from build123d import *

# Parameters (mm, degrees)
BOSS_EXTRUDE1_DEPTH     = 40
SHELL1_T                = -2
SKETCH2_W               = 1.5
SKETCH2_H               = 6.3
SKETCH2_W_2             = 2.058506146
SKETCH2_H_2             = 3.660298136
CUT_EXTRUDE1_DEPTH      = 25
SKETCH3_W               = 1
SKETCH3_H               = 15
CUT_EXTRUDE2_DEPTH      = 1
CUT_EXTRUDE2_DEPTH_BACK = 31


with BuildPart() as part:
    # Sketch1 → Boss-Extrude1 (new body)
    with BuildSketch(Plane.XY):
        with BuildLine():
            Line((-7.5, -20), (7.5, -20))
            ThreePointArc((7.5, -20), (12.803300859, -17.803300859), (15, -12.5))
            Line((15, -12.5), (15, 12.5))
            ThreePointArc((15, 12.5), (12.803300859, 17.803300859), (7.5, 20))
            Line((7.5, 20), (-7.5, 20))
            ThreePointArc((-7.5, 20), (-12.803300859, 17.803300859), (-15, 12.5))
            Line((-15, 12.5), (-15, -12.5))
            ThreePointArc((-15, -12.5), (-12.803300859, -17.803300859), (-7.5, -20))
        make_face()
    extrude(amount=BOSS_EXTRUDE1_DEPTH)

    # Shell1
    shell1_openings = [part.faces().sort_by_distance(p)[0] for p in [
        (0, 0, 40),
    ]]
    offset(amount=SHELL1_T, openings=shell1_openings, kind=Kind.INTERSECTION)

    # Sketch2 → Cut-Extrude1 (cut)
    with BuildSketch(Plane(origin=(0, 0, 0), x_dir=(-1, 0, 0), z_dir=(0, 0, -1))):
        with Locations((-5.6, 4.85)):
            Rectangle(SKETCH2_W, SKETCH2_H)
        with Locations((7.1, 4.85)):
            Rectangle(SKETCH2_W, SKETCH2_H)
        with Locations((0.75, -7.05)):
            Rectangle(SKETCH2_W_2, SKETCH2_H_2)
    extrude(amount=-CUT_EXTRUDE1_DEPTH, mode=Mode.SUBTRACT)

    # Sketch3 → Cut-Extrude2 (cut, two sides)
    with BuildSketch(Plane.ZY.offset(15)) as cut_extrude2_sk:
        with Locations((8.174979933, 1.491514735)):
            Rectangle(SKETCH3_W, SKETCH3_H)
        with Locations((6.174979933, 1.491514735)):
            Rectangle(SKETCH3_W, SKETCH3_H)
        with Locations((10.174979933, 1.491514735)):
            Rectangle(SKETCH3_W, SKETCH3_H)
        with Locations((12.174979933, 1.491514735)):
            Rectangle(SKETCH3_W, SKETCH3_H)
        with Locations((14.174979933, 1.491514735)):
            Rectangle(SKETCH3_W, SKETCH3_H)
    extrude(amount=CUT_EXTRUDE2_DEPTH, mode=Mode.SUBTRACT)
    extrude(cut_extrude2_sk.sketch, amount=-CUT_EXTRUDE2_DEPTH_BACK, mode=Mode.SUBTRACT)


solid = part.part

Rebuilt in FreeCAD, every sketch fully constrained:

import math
import FreeCAD as App
import Part
import Sketcher
from FreeCAD import Vector
Q = App.Units.Quantity


def faces_at(feature, points):
    """Names of the faces that lie closest to the given points."""
    faces = feature.Shape.Faces
    near = lambda p: min(range(len(faces)), key=lambda i: faces[i].distToShape(Part.Vertex(*p))[0])
    return sorted({f"Face{near(p) + 1}" for p in points})

doc = App.newDocument("Part")
body = doc.addObject("PartDesign::Body", "Body")

# Sketch on XY plane
sketch1 = body.newObject("Sketcher::SketchObject", "Sketch")
sketch1.AttachmentSupport = (doc.getObject("XY_Plane"), [""])
sketch1.MapMode = "FlatFace"
sketch1.addGeometry(Part.LineSegment(Vector(-7.5, -20, 0), Vector(7.5, -20, 0)), False)
sketch1.addGeometry(Part.ArcOfCircle(Part.Circle(Vector(7.5, -12.5, 0), Vector(0, 0, 1), 7.5), math.radians(-90), math.radians(0)), False)
sketch1.addGeometry(Part.LineSegment(Vector(15, -12.5, 0), Vector(15, 12.5, 0)), False)
sketch1.addGeometry(Part.ArcOfCircle(Part.Circle(Vector(7.5, 12.5, 0), Vector(0, 0, 1), 7.5), math.radians(0), math.radians(90)), False)
sketch1.addGeometry(Part.LineSegment(Vector(7.5, 20, 0), Vector(-7.5, 20, 0)), False)
sketch1.addGeometry(Part.ArcOfCircle(Part.Circle(Vector(-7.5, 12.5, 0), Vector(0, 0, 1), 7.5), math.radians(90), math.radians(180)), False)
sketch1.addGeometry(Part.LineSegment(Vector(-15, 12.5, 0), Vector(-15, -12.5, 0)), False)
sketch1.addGeometry(Part.ArcOfCircle(Part.Circle(Vector(-7.5, -12.5, 0), Vector(0, 0, 1), 7.5), math.radians(180), math.radians(270)), False)
sketch1.addConstraint(Sketcher.Constraint("Tangent", 0, 2, 1, 1))
sketch1.addConstraint(Sketcher.Constraint("Tangent", 1, 2, 2, 1))
sketch1.addConstraint(Sketcher.Constraint("Tangent", 2, 2, 3, 1))
sketch1.addConstraint(Sketcher.Constraint("Tangent", 3, 2, 4, 1))
sketch1.addConstraint(Sketcher.Constraint("Tangent", 4, 2, 5, 1))
sketch1.addConstraint(Sketcher.Constraint("Tangent", 5, 2, 6, 1))
sketch1.addConstraint(Sketcher.Constraint("Tangent", 6, 2, 7, 1))
sketch1.addConstraint(Sketcher.Constraint("Tangent", 7, 2, 0, 1))
sketch1.addConstraint(Sketcher.Constraint("Horizontal", 0))
sketch1.addConstraint(Sketcher.Constraint("Vertical", 2))
sketch1.addConstraint(Sketcher.Constraint("Horizontal", 4))
sketch1.addConstraint(Sketcher.Constraint("Vertical", 6))
sketch1.addConstraint(Sketcher.Constraint("Equal", 1, 3))
sketch1.addConstraint(Sketcher.Constraint("Equal", 3, 5))
sketch1.addConstraint(Sketcher.Constraint("Equal", 5, 7))
sketch1.addConstraint(Sketcher.Constraint("Symmetric", 1, 3, 5, 3, -1, 1))
sketch1.addConstraint(Sketcher.Constraint("Radius", 1, Q("7.5 mm")))
sketch1.addConstraint(Sketcher.Constraint("DistanceX", 0, 1, 0, 2, Q("15 mm")))
sketch1.addConstraint(Sketcher.Constraint("DistanceY", 2, 1, 2, 2, Q("25 mm")))
pad1 = body.newObject("PartDesign::Pad", "Pad")
pad1.Profile = sketch1
pad1.Length = 40
doc.recompute()

thickness = body.newObject("PartDesign::Thickness", "Thickness")
thickness.Base = (pad1, faces_at(pad1, [(0, 0, 40)]))
thickness.Value = 2
thickness.Reversed = True
thickness.Join = "Intersection"

# Sketch on XY plane
sketch2 = body.newObject("Sketcher::SketchObject", "Sketch001")
sketch2.AttachmentSupport = (doc.getObject("XY_Plane"), [""])
sketch2.MapMode = "FlatFace"
sketch2.addGeometry(Part.LineSegment(Vector(6.35, 8, 0), Vector(6.35, 1.7, 0)), False)
sketch2.addGeometry(Part.LineSegment(Vector(6.35, 1.7, 0), Vector(4.85, 1.7, 0)), False)
sketch2.addGeometry(Part.LineSegment(Vector(4.85, 1.7, 0), Vector(4.85, 8, 0)), False)
sketch2.addGeometry(Part.LineSegment(Vector(4.85, 8, 0), Vector(6.35, 8, 0)), False)
sketch2.addGeometry(Part.LineSegment(Vector(-6.35, 8, 0), Vector(-6.35, 1.7, 0)), False)
sketch2.addGeometry(Part.LineSegment(Vector(-6.35, 1.7, 0), Vector(-7.85, 1.7, 0)), False)
sketch2.addGeometry(Part.LineSegment(Vector(-7.85, 1.7, 0), Vector(-7.85, 8, 0)), False)
sketch2.addGeometry(Part.LineSegment(Vector(-7.85, 8, 0), Vector(-6.35, 8, 0)), False)
sketch2.addGeometry(Part.LineSegment(Vector(0.279253, -5.219851, 0), Vector(0.279253, -8.880149, 0)), False)
sketch2.addGeometry(Part.LineSegment(Vector(0.279253, -8.880149, 0), Vector(-1.779253, -8.880149, 0)), False)
sketch2.addGeometry(Part.LineSegment(Vector(-1.779253, -8.880149, 0), Vector(-1.779253, -5.219851, 0)), False)
sketch2.addGeometry(Part.LineSegment(Vector(-1.779253, -5.219851, 0), Vector(0.279253, -5.219851, 0)), False)
sketch2.addConstraint(Sketcher.Constraint("Coincident", 0, 2, 1, 1))
sketch2.addConstraint(Sketcher.Constraint("Coincident", 1, 2, 2, 1))
sketch2.addConstraint(Sketcher.Constraint("Coincident", 2, 2, 3, 1))
sketch2.addConstraint(Sketcher.Constraint("Coincident", 3, 2, 0, 1))
sketch2.addConstraint(Sketcher.Constraint("Coincident", 4, 2, 5, 1))
sketch2.addConstraint(Sketcher.Constraint("Coincident", 5, 2, 6, 1))
sketch2.addConstraint(Sketcher.Constraint("Coincident", 6, 2, 7, 1))
sketch2.addConstraint(Sketcher.Constraint("Coincident", 7, 2, 4, 1))
sketch2.addConstraint(Sketcher.Constraint("Coincident", 8, 2, 9, 1))
sketch2.addConstraint(Sketcher.Constraint("Coincident", 9, 2, 10, 1))
sketch2.addConstraint(Sketcher.Constraint("Coincident", 10, 2, 11, 1))
sketch2.addConstraint(Sketcher.Constraint("Coincident", 11, 2, 8, 1))
sketch2.addConstraint(Sketcher.Constraint("Vertical", 0))
sketch2.addConstraint(Sketcher.Constraint("Horizontal", 1))
sketch2.addConstraint(Sketcher.Constraint("Vertical", 2))
sketch2.addConstraint(Sketcher.Constraint("Horizontal", 3))
sketch2.addConstraint(Sketcher.Constraint("Vertical", 4))
sketch2.addConstraint(Sketcher.Constraint("Horizontal", 5))
sketch2.addConstraint(Sketcher.Constraint("Vertical", 6))
sketch2.addConstraint(Sketcher.Constraint("Horizontal", 7))
sketch2.addConstraint(Sketcher.Constraint("Vertical", 8))
sketch2.addConstraint(Sketcher.Constraint("Horizontal", 9))
sketch2.addConstraint(Sketcher.Constraint("Vertical", 10))
sketch2.addConstraint(Sketcher.Constraint("Horizontal", 11))
sketch2.addConstraint(Sketcher.Constraint("Symmetric", 0, 2, 4, 2, -2))
sketch2.addConstraint(Sketcher.Constraint("Horizontal", 3, 2, 6, 2))
sketch2.addConstraint(Sketcher.Constraint("Equal", 3, 5))
sketch2.addConstraint(Sketcher.Constraint("DistanceX", 1, 2, 1, 1, Q("1.5 mm")))
sketch2.addConstraint(Sketcher.Constraint("DistanceY", 0, 2, 0, 1, Q("6.3 mm")))
sketch2.addConstraint(Sketcher.Constraint("DistanceY", -1, 1, 2, 2, Q("8 mm")))
sketch2.addConstraint(Sketcher.Constraint("DistanceX", 4, 2, 1, 2, Q("11.2 mm")))
sketch2.addConstraint(Sketcher.Constraint("DistanceY", 8, 2, 8, 1, Q("3.660298 mm")))
sketch2.addConstraint(Sketcher.Constraint("DistanceX", 9, 2, 9, 1, Q("2.058506 mm")))
sketch2.addConstraint(Sketcher.Constraint("DistanceY", 8, 2, -1, 1, Q("8.880149 mm")))
sketch2.addConstraint(Sketcher.Constraint("DistanceX", -1, 1, 8, 2, Q("0.279253 mm")))
pocket1 = body.newObject("PartDesign::Pocket", "Pocket")
pocket1.Profile = sketch2
pocket1.Length = 25
pocket1.Reversed = True

# Sketch on YZ plane
sketch3 = body.newObject("Sketcher::SketchObject", "Sketch002")
sketch3.AttachmentSupport = (doc.getObject("YZ_Plane"), [""])
sketch3.MapMode = "FlatFace"
sketch3.AttachmentOffset = App.Placement(Vector(0, 0, -15), App.Rotation())
sketch3.addGeometry(Part.LineSegment(Vector(8.991515, 7.67498, 0), Vector(-6.008485, 7.67498, 0)), False)
sketch3.addGeometry(Part.LineSegment(Vector(-6.008485, 7.67498, 0), Vector(-6.008485, 8.67498, 0)), False)
sketch3.addGeometry(Part.LineSegment(Vector(-6.008485, 8.67498, 0), Vector(8.991515, 8.67498, 0)), False)
sketch3.addGeometry(Part.LineSegment(Vector(8.991515, 8.67498, 0), Vector(8.991515, 7.67498, 0)), False)
sketch3.addGeometry(Part.LineSegment(Vector(8.991515, 5.67498, 0), Vector(-6.008485, 5.67498, 0)), False)
sketch3.addGeometry(Part.LineSegment(Vector(-6.008485, 5.67498, 0), Vector(-6.008485, 6.67498, 0)), False)
sketch3.addGeometry(Part.LineSegment(Vector(-6.008485, 6.67498, 0), Vector(8.991515, 6.67498, 0)), False)
sketch3.addGeometry(Part.LineSegment(Vector(8.991515, 6.67498, 0), Vector(8.991515, 5.67498, 0)), False)
sketch3.addGeometry(Part.LineSegment(Vector(8.991515, 9.67498, 0), Vector(-6.008485, 9.67498, 0)), False)
sketch3.addGeometry(Part.LineSegment(Vector(-6.008485, 9.67498, 0), Vector(-6.008485, 10.67498, 0)), False)
sketch3.addGeometry(Part.LineSegment(Vector(-6.008485, 10.67498, 0), Vector(8.991515, 10.67498, 0)), False)
sketch3.addGeometry(Part.LineSegment(Vector(8.991515, 10.67498, 0), Vector(8.991515, 9.67498, 0)), False)
sketch3.addGeometry(Part.LineSegment(Vector(8.991515, 11.67498, 0), Vector(-6.008485, 11.67498, 0)), False)
sketch3.addGeometry(Part.LineSegment(Vector(-6.008485, 11.67498, 0), Vector(-6.008485, 12.67498, 0)), False)
sketch3.addGeometry(Part.LineSegment(Vector(-6.008485, 12.67498, 0), Vector(8.991515, 12.67498, 0)), False)
sketch3.addGeometry(Part.LineSegment(Vector(8.991515, 12.67498, 0), Vector(8.991515, 11.67498, 0)), False)
sketch3.addGeometry(Part.LineSegment(Vector(8.991515, 13.67498, 0), Vector(-6.008485, 13.67498, 0)), False)
sketch3.addGeometry(Part.LineSegment(Vector(-6.008485, 13.67498, 0), Vector(-6.008485, 14.67498, 0)), False)
sketch3.addGeometry(Part.LineSegment(Vector(-6.008485, 14.67498, 0), Vector(8.991515, 14.67498, 0)), False)
sketch3.addGeometry(Part.LineSegment(Vector(8.991515, 14.67498, 0), Vector(8.991515, 13.67498, 0)), False)
sketch3.addConstraint(Sketcher.Constraint("Coincident", 0, 2, 1, 1))
sketch3.addConstraint(Sketcher.Constraint("Coincident", 1, 2, 2, 1))
sketch3.addConstraint(Sketcher.Constraint("Coincident", 2, 2, 3, 1))
sketch3.addConstraint(Sketcher.Constraint("Coincident", 3, 2, 0, 1))
sketch3.addConstraint(Sketcher.Constraint("Coincident", 4, 2, 5, 1))
sketch3.addConstraint(Sketcher.Constraint("Coincident", 5, 2, 6, 1))
sketch3.addConstraint(Sketcher.Constraint("Coincident", 6, 2, 7, 1))
sketch3.addConstraint(Sketcher.Constraint("Coincident", 7, 2, 4, 1))
sketch3.addConstraint(Sketcher.Constraint("Coincident", 8, 2, 9, 1))
sketch3.addConstraint(Sketcher.Constraint("Coincident", 9, 2, 10, 1))
sketch3.addConstraint(Sketcher.Constraint("Coincident", 10, 2, 11, 1))
sketch3.addConstraint(Sketcher.Constraint("Coincident", 11, 2, 8, 1))
sketch3.addConstraint(Sketcher.Constraint("Coincident", 12, 2, 13, 1))
sketch3.addConstraint(Sketcher.Constraint("Coincident", 13, 2, 14, 1))
sketch3.addConstraint(Sketcher.Constraint("Coincident", 14, 2, 15, 1))
sketch3.addConstraint(Sketcher.Constraint("Coincident", 15, 2, 12, 1))
sketch3.addConstraint(Sketcher.Constraint("Coincident", 16, 2, 17, 1))
sketch3.addConstraint(Sketcher.Constraint("Coincident", 17, 2, 18, 1))
sketch3.addConstraint(Sketcher.Constraint("Coincident", 18, 2, 19, 1))
sketch3.addConstraint(Sketcher.Constraint("Coincident", 19, 2, 16, 1))
sketch3.addConstraint(Sketcher.Constraint("Horizontal", 0))
sketch3.addConstraint(Sketcher.Constraint("Vertical", 1))
sketch3.addConstraint(Sketcher.Constraint("Horizontal", 2))
sketch3.addConstraint(Sketcher.Constraint("Vertical", 3))
sketch3.addConstraint(Sketcher.Constraint("Horizontal", 4))
sketch3.addConstraint(Sketcher.Constraint("Vertical", 5))
sketch3.addConstraint(Sketcher.Constraint("Horizontal", 6))
sketch3.addConstraint(Sketcher.Constraint("Vertical", 7))
sketch3.addConstraint(Sketcher.Constraint("Horizontal", 8))
sketch3.addConstraint(Sketcher.Constraint("Vertical", 9))
sketch3.addConstraint(Sketcher.Constraint("Horizontal", 10))
sketch3.addConstraint(Sketcher.Constraint("Vertical", 11))
sketch3.addConstraint(Sketcher.Constraint("Horizontal", 12))
sketch3.addConstraint(Sketcher.Constraint("Vertical", 13))
sketch3.addConstraint(Sketcher.Constraint("Horizontal", 14))
sketch3.addConstraint(Sketcher.Constraint("Vertical", 15))
sketch3.addConstraint(Sketcher.Constraint("Horizontal", 16))
sketch3.addConstraint(Sketcher.Constraint("Vertical", 17))
sketch3.addConstraint(Sketcher.Constraint("Horizontal", 18))
sketch3.addConstraint(Sketcher.Constraint("Vertical", 19))
sketch3.addConstraint(Sketcher.Constraint("Vertical", 1, 2, 4, 2))
sketch3.addConstraint(Sketcher.Constraint("Vertical", 3, 2, 6, 2))
sketch3.addConstraint(Sketcher.Constraint("Vertical", 5, 2, 8, 2))
sketch3.addConstraint(Sketcher.Constraint("Vertical", 7, 2, 10, 2))
sketch3.addConstraint(Sketcher.Constraint("Vertical", 9, 2, 12, 2))
sketch3.addConstraint(Sketcher.Constraint("Vertical", 11, 2, 14, 2))
sketch3.addConstraint(Sketcher.Constraint("Vertical", 13, 2, 16, 2))
sketch3.addConstraint(Sketcher.Constraint("Vertical", 15, 2, 18, 2))
sketch3.addConstraint(Sketcher.Constraint("Equal", 3, 5))
sketch3.addConstraint(Sketcher.Constraint("Equal", 7, 9))
sketch3.addConstraint(Sketcher.Constraint("Equal", 11, 13))
sketch3.addConstraint(Sketcher.Constraint("Equal", 15, 17))
sketch3.addConstraint(Sketcher.Constraint("DistanceX", 0, 2, 0, 1, Q("15 mm")))
sketch3.addConstraint(Sketcher.Constraint("DistanceY", 1, 1, 1, 2, Q("1 mm")))
sketch3.addConstraint(Sketcher.Constraint("DistanceY", 4, 2, 0, 2, Q("2 mm")))
sketch3.addConstraint(Sketcher.Constraint("DistanceY", 1, 2, 8, 2, Q("1 mm")))
sketch3.addConstraint(Sketcher.Constraint("DistanceY", 9, 2, 12, 2, Q("1 mm")))
sketch3.addConstraint(Sketcher.Constraint("DistanceY", 13, 2, 16, 2, Q("1 mm")))
sketch3.addConstraint(Sketcher.Constraint("DistanceY", -1, 1, 0, 2, Q("7.67498 mm")))
sketch3.addConstraint(Sketcher.Constraint("DistanceX", 0, 2, -1, 1, Q("6.008485 mm")))
pocket2 = body.newObject("PartDesign::Pocket", "Pocket001")
pocket2.Profile = sketch3
pocket2.Type = "ThroughAll"
pocket2.Midplane = True

doc.recompute()
